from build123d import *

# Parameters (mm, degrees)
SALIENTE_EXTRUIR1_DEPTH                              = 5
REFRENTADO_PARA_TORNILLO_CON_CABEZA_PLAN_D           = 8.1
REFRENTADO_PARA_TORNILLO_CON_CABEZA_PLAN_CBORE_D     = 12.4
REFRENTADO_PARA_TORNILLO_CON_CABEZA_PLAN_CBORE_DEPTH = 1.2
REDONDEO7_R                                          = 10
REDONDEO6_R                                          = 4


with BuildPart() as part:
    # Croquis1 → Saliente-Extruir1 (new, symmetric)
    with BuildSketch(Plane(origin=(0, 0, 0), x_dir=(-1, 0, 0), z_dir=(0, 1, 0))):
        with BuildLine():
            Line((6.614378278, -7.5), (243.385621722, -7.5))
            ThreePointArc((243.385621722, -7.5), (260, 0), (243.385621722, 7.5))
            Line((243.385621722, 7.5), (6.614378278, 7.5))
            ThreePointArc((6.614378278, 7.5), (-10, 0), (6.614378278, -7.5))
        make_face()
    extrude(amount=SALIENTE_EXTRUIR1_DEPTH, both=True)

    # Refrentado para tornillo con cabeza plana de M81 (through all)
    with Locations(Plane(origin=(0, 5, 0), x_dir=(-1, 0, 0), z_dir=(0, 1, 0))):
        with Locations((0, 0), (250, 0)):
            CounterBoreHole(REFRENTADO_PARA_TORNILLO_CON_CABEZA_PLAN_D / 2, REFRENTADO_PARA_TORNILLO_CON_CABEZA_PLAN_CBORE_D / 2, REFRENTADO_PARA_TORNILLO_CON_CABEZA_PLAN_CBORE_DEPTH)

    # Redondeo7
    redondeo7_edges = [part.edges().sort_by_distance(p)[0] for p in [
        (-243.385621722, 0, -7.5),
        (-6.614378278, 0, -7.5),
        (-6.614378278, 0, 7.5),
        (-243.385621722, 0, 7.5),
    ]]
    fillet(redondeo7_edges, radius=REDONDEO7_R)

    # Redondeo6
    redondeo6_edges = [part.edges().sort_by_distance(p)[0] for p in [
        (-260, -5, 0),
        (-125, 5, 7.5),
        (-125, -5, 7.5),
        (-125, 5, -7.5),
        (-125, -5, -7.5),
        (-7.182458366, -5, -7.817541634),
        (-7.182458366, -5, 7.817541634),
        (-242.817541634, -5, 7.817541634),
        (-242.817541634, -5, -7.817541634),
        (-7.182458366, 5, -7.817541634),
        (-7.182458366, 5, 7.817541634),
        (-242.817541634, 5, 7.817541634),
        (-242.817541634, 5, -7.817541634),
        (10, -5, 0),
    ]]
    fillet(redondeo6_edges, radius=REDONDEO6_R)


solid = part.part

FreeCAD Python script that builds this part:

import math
import FreeCAD as App
import Part
import Sketcher


def edges_at(feature, points):
    """Names of the edges that pass closest to the given points."""
    edges = feature.Shape.Edges
    near = lambda p: min(range(len(edges)), key=lambda i: edges[i].distToShape(Part.Vertex(*p))[0])
    return sorted({f"Edge{near(p) + 1}" for p in points})

doc = App.newDocument("Part")
body = doc.addObject("PartDesign::Body", "Body")

# Sketch on XZ plane
sketch1 = doc.addObject("Sketcher::SketchObject", "Sketch")
body.addObject(sketch1)
sketch1.AttachmentSupport = (doc.XZ_Plane, [""])
sketch1.MapMode = "FlatFace"
sketch1.addGeometry([
    Part.LineSegment(App.Vector(-7, -8, 0), App.Vector(-243, -8, 0)),
    Part.ArcOfCircle(Part.Circle(App.Vector(-250, 0, 0), App.Vector(0, 0, 1), 10), math.radians(49), math.radians(311)),
    Part.LineSegment(App.Vector(-243, 8, 0), App.Vector(-7, 8, 0)),
    Part.ArcOfCircle(Part.Circle(App.Vector(0, 0, 0), App.Vector(0, 0, 1), 10), math.radians(-131), math.radians(131)),
], False)
sketch1.addConstraint([
    Sketcher.Constraint("Coincident", 0, 2, 1, 2),
    Sketcher.Constraint("Coincident", 1, 1, 2, 1),
    Sketcher.Constraint("Coincident", 2, 2, 3, 2),
    Sketcher.Constraint("Coincident", 3, 1, 0, 1),
    Sketcher.Constraint("Horizontal", 0),
    Sketcher.Constraint("Horizontal", 2),
    Sketcher.Constraint("Coincident", 3, 3, -1, 1),
    Sketcher.Constraint("Equal", 1, 3),
    Sketcher.Constraint("Symmetric", 0, 2, 1, 1, -1),
    Sketcher.Constraint("Radius", 1, 10.0),
    Sketcher.Constraint("DistanceX", 1, 3, -1, 1, 250.0),
    Sketcher.Constraint("DistanceY", 0, 2, 1, 1, 15.0),
])
pad1 = doc.addObject("PartDesign::Pad", "Pad")
body.addObject(pad1)
pad1.Profile = sketch1
pad1.Length = 10
pad1.Midplane = True

# Sketch on XZ plane
sketch2 = doc.addObject("Sketcher::SketchObject", "Sketch001")
body.addObject(sketch2)
sketch2.AttachmentSupport = (doc.XZ_Plane, [""])
sketch2.MapMode = "FlatFace"
sketch2.AttachmentOffset = App.Placement(App.Vector(0, 0, -5), App.Rotation())
sketch2.addGeometry([
    Part.Circle(App.Vector(0, 0, 0), App.Vector(0, 0, 1), 4),
    Part.Circle(App.Vector(-250, 0, 0), App.Vector(0, 0, 1), 4),
], False)
sketch2.addConstraint([
    Sketcher.Constraint("Coincident", 0, 3, -1, 1),
    Sketcher.Constraint("Equal", 0, 1),
    Sketcher.Constraint("PointOnObject", 1, 3, -1),
    Sketcher.Constraint("Diameter", 0, 8.1),
    Sketcher.Constraint("DistanceX", 1, 3, -1, 1, 250.0),
])
doc.recompute()
hole = doc.addObject("PartDesign::Hole", "Hole")
body.addObject(hole)
hole.Profile = sketch2
hole.ThreadType = "None"
hole.Diameter = 8.1
hole.DepthType = "ThroughAll"
hole.HoleCutType = "Counterbore"
hole.HoleCutDiameter = 12.4
hole.HoleCutDepth = 1.2
hole.Reversed = True
doc.recompute()

fillet = doc.addObject("PartDesign::Fillet", "Fillet")
body.addObject(fillet)
fillet.Base = (hole, edges_at(hole, [
    (-243.386, 0, -7.5),
    (-6.614, 0, -7.5),
    (-6.614, 0, 7.5),
    (-243.386, 0, 7.5),
]))
fillet.Radius = 10
doc.recompute()

fillet2 = doc.addObject("PartDesign::Fillet", "Fillet001")
body.addObject(fillet2)
fillet2.Base = (fillet, edges_at(fillet, [
    (-260, -5, 0),
    (-125, 5, 7.5),
    (-125, -5, 7.5),
    (-125, 5, -7.5),
    (-125, -5, -7.5),
    (-7.182, -5, -7.818),
    (-7.182, -5, 7.818),
    (-242.818, -5, 7.818),
    (-242.818, -5, -7.818),
    (-7.182, 5, -7.818),
    (-7.182, 5, 7.818),
    (-242.818, 5, 7.818),
    (-242.818, 5, -7.818),
    (10, -5, 0),
]))
fillet2.Radius = 4

doc.recompute()
